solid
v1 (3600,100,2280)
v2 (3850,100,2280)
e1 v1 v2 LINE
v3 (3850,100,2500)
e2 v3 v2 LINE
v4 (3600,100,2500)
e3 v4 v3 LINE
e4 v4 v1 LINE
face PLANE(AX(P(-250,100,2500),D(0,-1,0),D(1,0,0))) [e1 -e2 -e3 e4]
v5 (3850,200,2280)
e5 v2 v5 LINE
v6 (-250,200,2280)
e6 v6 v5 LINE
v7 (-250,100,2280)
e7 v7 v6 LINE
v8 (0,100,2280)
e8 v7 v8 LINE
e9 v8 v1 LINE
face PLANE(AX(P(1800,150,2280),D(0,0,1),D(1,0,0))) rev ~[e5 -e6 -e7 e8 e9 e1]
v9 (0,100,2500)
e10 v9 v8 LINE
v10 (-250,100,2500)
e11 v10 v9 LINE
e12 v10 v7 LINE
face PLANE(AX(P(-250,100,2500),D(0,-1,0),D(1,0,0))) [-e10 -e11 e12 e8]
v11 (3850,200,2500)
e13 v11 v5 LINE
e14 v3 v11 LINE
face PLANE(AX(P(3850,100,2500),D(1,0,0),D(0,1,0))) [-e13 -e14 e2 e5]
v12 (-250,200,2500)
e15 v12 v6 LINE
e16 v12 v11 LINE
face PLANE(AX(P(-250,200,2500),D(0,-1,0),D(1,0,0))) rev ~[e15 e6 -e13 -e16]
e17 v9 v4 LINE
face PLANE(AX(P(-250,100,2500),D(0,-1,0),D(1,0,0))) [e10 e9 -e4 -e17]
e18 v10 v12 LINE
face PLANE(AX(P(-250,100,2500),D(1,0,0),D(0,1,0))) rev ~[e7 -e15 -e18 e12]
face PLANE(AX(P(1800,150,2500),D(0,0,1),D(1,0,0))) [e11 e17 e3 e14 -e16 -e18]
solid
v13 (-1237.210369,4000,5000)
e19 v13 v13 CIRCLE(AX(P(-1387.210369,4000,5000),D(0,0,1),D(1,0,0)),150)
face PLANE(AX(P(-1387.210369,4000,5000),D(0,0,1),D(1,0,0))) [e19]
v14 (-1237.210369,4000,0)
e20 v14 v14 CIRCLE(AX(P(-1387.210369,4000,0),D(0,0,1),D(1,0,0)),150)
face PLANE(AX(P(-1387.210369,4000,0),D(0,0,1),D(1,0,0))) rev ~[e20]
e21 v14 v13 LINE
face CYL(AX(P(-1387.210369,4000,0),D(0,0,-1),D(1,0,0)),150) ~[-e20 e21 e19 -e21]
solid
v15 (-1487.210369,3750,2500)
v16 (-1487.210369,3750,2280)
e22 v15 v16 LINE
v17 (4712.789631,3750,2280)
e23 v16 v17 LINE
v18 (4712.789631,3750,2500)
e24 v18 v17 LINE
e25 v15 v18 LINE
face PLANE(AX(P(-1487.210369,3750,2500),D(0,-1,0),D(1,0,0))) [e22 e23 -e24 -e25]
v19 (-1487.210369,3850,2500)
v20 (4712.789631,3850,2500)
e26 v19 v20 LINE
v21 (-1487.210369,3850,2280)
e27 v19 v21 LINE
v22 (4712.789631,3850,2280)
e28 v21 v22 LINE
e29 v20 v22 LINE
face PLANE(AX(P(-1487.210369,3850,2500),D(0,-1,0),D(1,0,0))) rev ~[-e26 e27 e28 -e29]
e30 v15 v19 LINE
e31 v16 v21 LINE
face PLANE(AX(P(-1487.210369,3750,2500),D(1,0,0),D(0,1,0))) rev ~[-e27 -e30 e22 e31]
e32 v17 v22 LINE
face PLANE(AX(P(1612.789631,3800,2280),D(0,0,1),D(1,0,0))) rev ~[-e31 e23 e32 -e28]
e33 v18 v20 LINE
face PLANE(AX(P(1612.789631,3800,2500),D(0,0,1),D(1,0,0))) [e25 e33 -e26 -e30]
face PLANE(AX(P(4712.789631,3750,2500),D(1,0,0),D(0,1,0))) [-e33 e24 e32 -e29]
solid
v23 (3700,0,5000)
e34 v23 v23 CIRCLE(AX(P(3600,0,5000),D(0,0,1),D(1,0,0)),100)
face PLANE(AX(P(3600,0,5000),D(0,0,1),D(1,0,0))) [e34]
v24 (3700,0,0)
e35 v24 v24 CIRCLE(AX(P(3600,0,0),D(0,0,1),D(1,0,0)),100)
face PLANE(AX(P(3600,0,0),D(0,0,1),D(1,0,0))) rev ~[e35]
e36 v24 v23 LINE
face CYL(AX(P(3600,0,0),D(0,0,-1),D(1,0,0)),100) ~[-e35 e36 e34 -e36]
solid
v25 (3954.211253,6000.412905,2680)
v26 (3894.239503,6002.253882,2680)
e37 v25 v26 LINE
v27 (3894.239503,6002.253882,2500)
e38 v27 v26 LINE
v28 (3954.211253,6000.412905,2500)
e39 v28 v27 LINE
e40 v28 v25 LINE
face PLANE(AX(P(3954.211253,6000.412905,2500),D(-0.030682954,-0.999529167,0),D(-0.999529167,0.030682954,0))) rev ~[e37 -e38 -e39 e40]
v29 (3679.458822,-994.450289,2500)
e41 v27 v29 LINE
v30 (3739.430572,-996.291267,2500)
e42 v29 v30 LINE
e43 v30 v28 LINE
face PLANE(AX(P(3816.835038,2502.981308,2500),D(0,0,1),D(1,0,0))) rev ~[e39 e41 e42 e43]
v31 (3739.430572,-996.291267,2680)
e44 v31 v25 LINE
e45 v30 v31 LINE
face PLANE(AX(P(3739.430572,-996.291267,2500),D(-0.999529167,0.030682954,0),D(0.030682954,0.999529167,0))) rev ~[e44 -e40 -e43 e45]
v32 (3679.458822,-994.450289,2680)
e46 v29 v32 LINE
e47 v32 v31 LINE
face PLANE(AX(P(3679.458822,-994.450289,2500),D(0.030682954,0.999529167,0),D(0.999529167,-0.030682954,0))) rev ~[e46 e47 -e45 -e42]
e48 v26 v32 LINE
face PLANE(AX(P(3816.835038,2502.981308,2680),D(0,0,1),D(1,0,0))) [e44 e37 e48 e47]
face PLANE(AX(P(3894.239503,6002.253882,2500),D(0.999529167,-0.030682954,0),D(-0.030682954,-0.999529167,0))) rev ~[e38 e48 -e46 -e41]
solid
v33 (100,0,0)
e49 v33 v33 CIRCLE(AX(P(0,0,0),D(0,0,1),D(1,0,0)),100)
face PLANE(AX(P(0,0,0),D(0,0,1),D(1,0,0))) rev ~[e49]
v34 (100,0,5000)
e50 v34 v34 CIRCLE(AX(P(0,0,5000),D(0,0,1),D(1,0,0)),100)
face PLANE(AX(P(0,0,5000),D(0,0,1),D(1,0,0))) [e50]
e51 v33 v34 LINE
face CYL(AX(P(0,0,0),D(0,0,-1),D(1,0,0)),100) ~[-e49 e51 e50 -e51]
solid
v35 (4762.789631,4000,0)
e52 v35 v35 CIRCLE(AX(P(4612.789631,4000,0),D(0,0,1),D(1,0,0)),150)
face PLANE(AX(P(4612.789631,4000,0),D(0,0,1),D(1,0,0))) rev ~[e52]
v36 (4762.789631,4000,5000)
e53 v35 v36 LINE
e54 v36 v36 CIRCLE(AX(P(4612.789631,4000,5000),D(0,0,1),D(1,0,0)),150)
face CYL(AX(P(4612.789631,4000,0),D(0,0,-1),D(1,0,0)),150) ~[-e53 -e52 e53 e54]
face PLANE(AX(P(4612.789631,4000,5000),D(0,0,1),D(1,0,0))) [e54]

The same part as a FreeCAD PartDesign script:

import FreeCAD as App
import Part
import Sketcher
Q = App.Units.Quantity

doc = App.newDocument("Part")
body = doc.addObject("PartDesign::Body", "Body")

sketch1 = body.newObject("Sketcher::SketchObject", "Sketch")
sketch1.AttachmentSupport = (doc.getObject("XY_Plane"), [""])
sketch1.MapMode = "FlatFace"
sketch1.addGeometry(Part.Circle(App.Vector(0, 0, 0), App.Vector(0, 0, 1), 100), False)
sketch1.addConstraint(Sketcher.Constraint("Coincident", 0, 3, -1, 1))
sketch1.addConstraint(Sketcher.Constraint("Diameter", 0, Q("200 mm")))
pad1 = body.newObject("PartDesign::Pad", "Pad")
pad1.Profile = sketch1
pad1.Length = 5000
body2 = doc.addObject("PartDesign::Body", "Body001")

sketch2 = body2.newObject("Sketcher::SketchObject", "Sketch001")
sketch2.AttachmentSupport = (doc.getObject("XY_Plane001"), [""])
sketch2.MapMode = "FlatFace"
sketch2.addGeometry(Part.Circle(App.Vector(-1387, 4000, 0), App.Vector(0, 0, 1), 150), False)
sketch2.addConstraint(Sketcher.Constraint("Diameter", 0, Q("300 mm")))
sketch2.addConstraint(Sketcher.Constraint("DistanceY", -1, 1, 0, 3, Q("4000 mm")))
sketch2.addConstraint(Sketcher.Constraint("DistanceX", 0, 3, -1, 1, Q("1387.210369 mm")))
pad2 = body2.newObject("PartDesign::Pad", "Pad001")
pad2.Profile = sketch2
pad2.Length = 5000
body3 = doc.addObject("PartDesign::Body", "Body002")

sketch3 = body3.newObject("Sketcher::SketchObject", "Sketch002")
sketch3.AttachmentSupport = (doc.getObject("XY_Plane002"), [""])
sketch3.MapMode = "FlatFace"
sketch3.addGeometry(Part.Circle(App.Vector(4613, 4000, 0), App.Vector(0, 0, 1), 150), False)
sketch3.addConstraint(Sketcher.Constraint("Diameter", 0, Q("300 mm")))
sketch3.addConstraint(Sketcher.Constraint("DistanceY", -1, 1, 0, 3, Q("4000 mm")))
sketch3.addConstraint(Sketcher.Constraint("DistanceX", -1, 1, 0, 3, Q("4612.789631 mm")))
pad3 = body3.newObject("PartDesign::Pad", "Pad002")
pad3.Profile = sketch3
pad3.Length = 5000
body4 = doc.addObject("PartDesign::Body", "Body003")

sketch4 = body4.newObject("Sketcher::SketchObject", "Sketch003")
sketch4.AttachmentSupport = (doc.getObject("XY_Plane003"), [""])
sketch4.MapMode = "FlatFace"
sketch4.addGeometry(Part.Circle(App.Vector(3600, 0, 0), App.Vector(0, 0, 1), 100), False)
sketch4.addConstraint(Sketcher.Constraint("PointOnObject", 0, 3, -1))
sketch4.addConstraint(Sketcher.Constraint("Diameter", 0, Q("200 mm")))
sketch4.addConstraint(Sketcher.Constraint("DistanceX", -1, 1, 0, 3, Q("3600 mm")))
pad4 = body4.newObject("PartDesign::Pad", "Pad003")
pad4.Profile = sketch4
pad4.Length = 5000
body.AllowCompound = True
doc.recompute()

boolean = body.newObject("PartDesign::Boolean", "Boolean")
boolean.Type = "Fuse"
boolean.addObjects([body4])

sketch5 = body.newObject("Sketcher::SketchObject", "Sketch004")
sketch5.AttachmentSupport = (doc.getObject("XY_Plane"), [""])
sketch5.MapMode = "FlatFace"
sketch5.AttachmentOffset = App.Placement(App.Vector(0, 0, 2500), App.Rotation())
sketch5.addGeometry(Part.LineSegment(App.Vector(-250, 200, 0), App.Vector(-250, 100, 0)), False)
sketch5.addGeometry(Part.LineSegment(App.Vector(-250, 100, 0), App.Vector(3850, 100, 0)), False)
sketch5.addGeometry(Part.LineSegment(App.Vector(3850, 100, 0), App.Vector(3850, 200, 0)), False)
sketch5.addGeometry(Part.LineSegment(App.Vector(3850, 200, 0), App.Vector(-250, 200, 0)), False)
sketch5.addConstraint(Sketcher.Constraint("Coincident", 0, 2, 1, 1))
sketch5.addConstraint(Sketcher.Constraint("Coincident", 1, 2, 2, 1))
sketch5.addConstraint(Sketcher.Constraint("Coincident", 2, 2, 3, 1))
sketch5.addConstraint(Sketcher.Constraint("Coincident", 3, 2, 0, 1))
sketch5.addConstraint(Sketcher.Constraint("Vertical", 0))
sketch5.addConstraint(Sketcher.Constraint("Horizontal", 1))
sketch5.addConstraint(Sketcher.Constraint("Vertical", 2))
sketch5.addConstraint(Sketcher.Constraint("Horizontal", 3))
sketch5.addConstraint(Sketcher.Constraint("DistanceX", 1, 1, 1, 2, Q("4100 mm")))
sketch5.addConstraint(Sketcher.Constraint("DistanceY", 0, 2, 0, 1, Q("100 mm")))
sketch5.addConstraint(Sketcher.Constraint("DistanceX", 0, 2, -1, 1, Q("250 mm")))
sketch5.addConstraint(Sketcher.Constraint("DistanceY", -1, 1, 0, 2, Q("100 mm")))
pad5 = body.newObject("PartDesign::Pad", "Pad004")
pad5.Profile = sketch5
pad5.Length = 220
pad5.Reversed = True
body5 = doc.addObject("PartDesign::Body", "Body004")

sketch6 = body5.newObject("Sketcher::SketchObject", "Sketch005")
sketch6.AttachmentSupport = (doc.getObject("XY_Plane004"), [""])
sketch6.MapMode = "FlatFace"
sketch6.AttachmentOffset = App.Placement(App.Vector(0, 0, 2500), App.Rotation())
sketch6.addGeometry(Part.LineSegment(App.Vector(-1487, 3850, 0), App.Vector(-1487, 3750, 0)), False)
sketch6.addGeometry(Part.LineSegment(App.Vector(-1487, 3750, 0), App.Vector(4713, 3750, 0)), False)
sketch6.addGeometry(Part.LineSegment(App.Vector(4713, 3750, 0), App.Vector(4713, 3850, 0)), False)
sketch6.addGeometry(Part.LineSegment(App.Vector(4713, 3850, 0), App.Vector(-1487, 3850, 0)), False)
sketch6.addConstraint(Sketcher.Constraint("Coincident", 0, 2, 1, 1))
sketch6.addConstraint(Sketcher.Constraint("Coincident", 1, 2, 2, 1))
sketch6.addConstraint(Sketcher.Constraint("Coincident", 2, 2, 3, 1))
sketch6.addConstraint(Sketcher.Constraint("Coincident", 3, 2, 0, 1))
sketch6.addConstraint(Sketcher.Constraint("Vertical", 0))
sketch6.addConstraint(Sketcher.Constraint("Horizontal", 1))
sketch6.addConstraint(Sketcher.Constraint("Vertical", 2))
sketch6.addConstraint(Sketcher.Constraint("Horizontal", 3))
sketch6.addConstraint(Sketcher.Constraint("DistanceX", 1, 1, 1, 2, Q("6200 mm")))
sketch6.addConstraint(Sketcher.Constraint("DistanceY", 0, 2, 0, 1, Q("100 mm")))
sketch6.addConstraint(Sketcher.Constraint("DistanceY", -1, 1, 0, 2, Q("3750 mm")))
sketch6.addConstraint(Sketcher.Constraint("DistanceX", 0, 2, -1, 1, Q("1487.210369 mm")))
pad6 = body5.newObject("PartDesign::Pad", "Pad005")
pad6.Profile = sketch6
pad6.Length = 220
pad6.Reversed = True
body6 = doc.addObject("PartDesign::Body", "Body005")

sketch7 = body6.newObject("Sketcher::SketchObject", "Sketch006")
sketch7.AttachmentSupport = (doc.getObject("XY_Plane005"), [""])
sketch7.MapMode = "FlatFace"
sketch7.AttachmentOffset = App.Placement(App.Vector(0, 0, 2500), App.Rotation())
sketch7.addGeometry(Part.LineSegment(App.Vector(3894, 6002, 0), App.Vector(3679, -994, 0)), False)
sketch7.addGeometry(Part.LineSegment(App.Vector(3679, -994, 0), App.Vector(3739, -996, 0)), False)
sketch7.addGeometry(Part.LineSegment(App.Vector(3739, -996, 0), App.Vector(3954, 6000, 0)), False)
sketch7.addGeometry(Part.LineSegment(App.Vector(3954, 6000, 0), App.Vector(3894, 6002, 0)), False)
sketch7.addConstraint(Sketcher.Constraint("Coincident", 0, 2, 1, 1))
sketch7.addConstraint(Sketcher.Constraint("Coincident", 1, 2, 2, 1))
sketch7.addConstraint(Sketcher.Constraint("Coincident", 2, 2, 3, 1))
sketch7.addConstraint(Sketcher.Constraint("Coincident", 3, 2, 0, 1))
sketch7.addConstraint(Sketcher.Constraint("Perpendicular", 0, 1))
sketch7.addConstraint(Sketcher.Constraint("Perpendicular", 1, 2))
sketch7.addConstraint(Sketcher.Constraint("Perpendicular", 2, 3))
sketch7.addConstraint(Sketcher.Constraint("Distance", 0, Q("7000 mm")))
sketch7.addConstraint(Sketcher.Constraint("Distance", 1, Q("60 mm")))
sketch7.addConstraint(Sketcher.Constraint("DistanceY", 0, 2, -1, 1, Q("994.450289 mm")))
sketch7.addConstraint(Sketcher.Constraint("DistanceY", -1, 1, 3, 2, Q("6002.253882 mm")))
sketch7.addConstraint(Sketcher.Constraint("DistanceX", -1, 1, 0, 2, Q("3679.458822 mm")))
pad7 = body6.newObject("PartDesign::Pad", "Pad006")
pad7.Profile = sketch7
pad7.Length = 180

doc.recompute()
